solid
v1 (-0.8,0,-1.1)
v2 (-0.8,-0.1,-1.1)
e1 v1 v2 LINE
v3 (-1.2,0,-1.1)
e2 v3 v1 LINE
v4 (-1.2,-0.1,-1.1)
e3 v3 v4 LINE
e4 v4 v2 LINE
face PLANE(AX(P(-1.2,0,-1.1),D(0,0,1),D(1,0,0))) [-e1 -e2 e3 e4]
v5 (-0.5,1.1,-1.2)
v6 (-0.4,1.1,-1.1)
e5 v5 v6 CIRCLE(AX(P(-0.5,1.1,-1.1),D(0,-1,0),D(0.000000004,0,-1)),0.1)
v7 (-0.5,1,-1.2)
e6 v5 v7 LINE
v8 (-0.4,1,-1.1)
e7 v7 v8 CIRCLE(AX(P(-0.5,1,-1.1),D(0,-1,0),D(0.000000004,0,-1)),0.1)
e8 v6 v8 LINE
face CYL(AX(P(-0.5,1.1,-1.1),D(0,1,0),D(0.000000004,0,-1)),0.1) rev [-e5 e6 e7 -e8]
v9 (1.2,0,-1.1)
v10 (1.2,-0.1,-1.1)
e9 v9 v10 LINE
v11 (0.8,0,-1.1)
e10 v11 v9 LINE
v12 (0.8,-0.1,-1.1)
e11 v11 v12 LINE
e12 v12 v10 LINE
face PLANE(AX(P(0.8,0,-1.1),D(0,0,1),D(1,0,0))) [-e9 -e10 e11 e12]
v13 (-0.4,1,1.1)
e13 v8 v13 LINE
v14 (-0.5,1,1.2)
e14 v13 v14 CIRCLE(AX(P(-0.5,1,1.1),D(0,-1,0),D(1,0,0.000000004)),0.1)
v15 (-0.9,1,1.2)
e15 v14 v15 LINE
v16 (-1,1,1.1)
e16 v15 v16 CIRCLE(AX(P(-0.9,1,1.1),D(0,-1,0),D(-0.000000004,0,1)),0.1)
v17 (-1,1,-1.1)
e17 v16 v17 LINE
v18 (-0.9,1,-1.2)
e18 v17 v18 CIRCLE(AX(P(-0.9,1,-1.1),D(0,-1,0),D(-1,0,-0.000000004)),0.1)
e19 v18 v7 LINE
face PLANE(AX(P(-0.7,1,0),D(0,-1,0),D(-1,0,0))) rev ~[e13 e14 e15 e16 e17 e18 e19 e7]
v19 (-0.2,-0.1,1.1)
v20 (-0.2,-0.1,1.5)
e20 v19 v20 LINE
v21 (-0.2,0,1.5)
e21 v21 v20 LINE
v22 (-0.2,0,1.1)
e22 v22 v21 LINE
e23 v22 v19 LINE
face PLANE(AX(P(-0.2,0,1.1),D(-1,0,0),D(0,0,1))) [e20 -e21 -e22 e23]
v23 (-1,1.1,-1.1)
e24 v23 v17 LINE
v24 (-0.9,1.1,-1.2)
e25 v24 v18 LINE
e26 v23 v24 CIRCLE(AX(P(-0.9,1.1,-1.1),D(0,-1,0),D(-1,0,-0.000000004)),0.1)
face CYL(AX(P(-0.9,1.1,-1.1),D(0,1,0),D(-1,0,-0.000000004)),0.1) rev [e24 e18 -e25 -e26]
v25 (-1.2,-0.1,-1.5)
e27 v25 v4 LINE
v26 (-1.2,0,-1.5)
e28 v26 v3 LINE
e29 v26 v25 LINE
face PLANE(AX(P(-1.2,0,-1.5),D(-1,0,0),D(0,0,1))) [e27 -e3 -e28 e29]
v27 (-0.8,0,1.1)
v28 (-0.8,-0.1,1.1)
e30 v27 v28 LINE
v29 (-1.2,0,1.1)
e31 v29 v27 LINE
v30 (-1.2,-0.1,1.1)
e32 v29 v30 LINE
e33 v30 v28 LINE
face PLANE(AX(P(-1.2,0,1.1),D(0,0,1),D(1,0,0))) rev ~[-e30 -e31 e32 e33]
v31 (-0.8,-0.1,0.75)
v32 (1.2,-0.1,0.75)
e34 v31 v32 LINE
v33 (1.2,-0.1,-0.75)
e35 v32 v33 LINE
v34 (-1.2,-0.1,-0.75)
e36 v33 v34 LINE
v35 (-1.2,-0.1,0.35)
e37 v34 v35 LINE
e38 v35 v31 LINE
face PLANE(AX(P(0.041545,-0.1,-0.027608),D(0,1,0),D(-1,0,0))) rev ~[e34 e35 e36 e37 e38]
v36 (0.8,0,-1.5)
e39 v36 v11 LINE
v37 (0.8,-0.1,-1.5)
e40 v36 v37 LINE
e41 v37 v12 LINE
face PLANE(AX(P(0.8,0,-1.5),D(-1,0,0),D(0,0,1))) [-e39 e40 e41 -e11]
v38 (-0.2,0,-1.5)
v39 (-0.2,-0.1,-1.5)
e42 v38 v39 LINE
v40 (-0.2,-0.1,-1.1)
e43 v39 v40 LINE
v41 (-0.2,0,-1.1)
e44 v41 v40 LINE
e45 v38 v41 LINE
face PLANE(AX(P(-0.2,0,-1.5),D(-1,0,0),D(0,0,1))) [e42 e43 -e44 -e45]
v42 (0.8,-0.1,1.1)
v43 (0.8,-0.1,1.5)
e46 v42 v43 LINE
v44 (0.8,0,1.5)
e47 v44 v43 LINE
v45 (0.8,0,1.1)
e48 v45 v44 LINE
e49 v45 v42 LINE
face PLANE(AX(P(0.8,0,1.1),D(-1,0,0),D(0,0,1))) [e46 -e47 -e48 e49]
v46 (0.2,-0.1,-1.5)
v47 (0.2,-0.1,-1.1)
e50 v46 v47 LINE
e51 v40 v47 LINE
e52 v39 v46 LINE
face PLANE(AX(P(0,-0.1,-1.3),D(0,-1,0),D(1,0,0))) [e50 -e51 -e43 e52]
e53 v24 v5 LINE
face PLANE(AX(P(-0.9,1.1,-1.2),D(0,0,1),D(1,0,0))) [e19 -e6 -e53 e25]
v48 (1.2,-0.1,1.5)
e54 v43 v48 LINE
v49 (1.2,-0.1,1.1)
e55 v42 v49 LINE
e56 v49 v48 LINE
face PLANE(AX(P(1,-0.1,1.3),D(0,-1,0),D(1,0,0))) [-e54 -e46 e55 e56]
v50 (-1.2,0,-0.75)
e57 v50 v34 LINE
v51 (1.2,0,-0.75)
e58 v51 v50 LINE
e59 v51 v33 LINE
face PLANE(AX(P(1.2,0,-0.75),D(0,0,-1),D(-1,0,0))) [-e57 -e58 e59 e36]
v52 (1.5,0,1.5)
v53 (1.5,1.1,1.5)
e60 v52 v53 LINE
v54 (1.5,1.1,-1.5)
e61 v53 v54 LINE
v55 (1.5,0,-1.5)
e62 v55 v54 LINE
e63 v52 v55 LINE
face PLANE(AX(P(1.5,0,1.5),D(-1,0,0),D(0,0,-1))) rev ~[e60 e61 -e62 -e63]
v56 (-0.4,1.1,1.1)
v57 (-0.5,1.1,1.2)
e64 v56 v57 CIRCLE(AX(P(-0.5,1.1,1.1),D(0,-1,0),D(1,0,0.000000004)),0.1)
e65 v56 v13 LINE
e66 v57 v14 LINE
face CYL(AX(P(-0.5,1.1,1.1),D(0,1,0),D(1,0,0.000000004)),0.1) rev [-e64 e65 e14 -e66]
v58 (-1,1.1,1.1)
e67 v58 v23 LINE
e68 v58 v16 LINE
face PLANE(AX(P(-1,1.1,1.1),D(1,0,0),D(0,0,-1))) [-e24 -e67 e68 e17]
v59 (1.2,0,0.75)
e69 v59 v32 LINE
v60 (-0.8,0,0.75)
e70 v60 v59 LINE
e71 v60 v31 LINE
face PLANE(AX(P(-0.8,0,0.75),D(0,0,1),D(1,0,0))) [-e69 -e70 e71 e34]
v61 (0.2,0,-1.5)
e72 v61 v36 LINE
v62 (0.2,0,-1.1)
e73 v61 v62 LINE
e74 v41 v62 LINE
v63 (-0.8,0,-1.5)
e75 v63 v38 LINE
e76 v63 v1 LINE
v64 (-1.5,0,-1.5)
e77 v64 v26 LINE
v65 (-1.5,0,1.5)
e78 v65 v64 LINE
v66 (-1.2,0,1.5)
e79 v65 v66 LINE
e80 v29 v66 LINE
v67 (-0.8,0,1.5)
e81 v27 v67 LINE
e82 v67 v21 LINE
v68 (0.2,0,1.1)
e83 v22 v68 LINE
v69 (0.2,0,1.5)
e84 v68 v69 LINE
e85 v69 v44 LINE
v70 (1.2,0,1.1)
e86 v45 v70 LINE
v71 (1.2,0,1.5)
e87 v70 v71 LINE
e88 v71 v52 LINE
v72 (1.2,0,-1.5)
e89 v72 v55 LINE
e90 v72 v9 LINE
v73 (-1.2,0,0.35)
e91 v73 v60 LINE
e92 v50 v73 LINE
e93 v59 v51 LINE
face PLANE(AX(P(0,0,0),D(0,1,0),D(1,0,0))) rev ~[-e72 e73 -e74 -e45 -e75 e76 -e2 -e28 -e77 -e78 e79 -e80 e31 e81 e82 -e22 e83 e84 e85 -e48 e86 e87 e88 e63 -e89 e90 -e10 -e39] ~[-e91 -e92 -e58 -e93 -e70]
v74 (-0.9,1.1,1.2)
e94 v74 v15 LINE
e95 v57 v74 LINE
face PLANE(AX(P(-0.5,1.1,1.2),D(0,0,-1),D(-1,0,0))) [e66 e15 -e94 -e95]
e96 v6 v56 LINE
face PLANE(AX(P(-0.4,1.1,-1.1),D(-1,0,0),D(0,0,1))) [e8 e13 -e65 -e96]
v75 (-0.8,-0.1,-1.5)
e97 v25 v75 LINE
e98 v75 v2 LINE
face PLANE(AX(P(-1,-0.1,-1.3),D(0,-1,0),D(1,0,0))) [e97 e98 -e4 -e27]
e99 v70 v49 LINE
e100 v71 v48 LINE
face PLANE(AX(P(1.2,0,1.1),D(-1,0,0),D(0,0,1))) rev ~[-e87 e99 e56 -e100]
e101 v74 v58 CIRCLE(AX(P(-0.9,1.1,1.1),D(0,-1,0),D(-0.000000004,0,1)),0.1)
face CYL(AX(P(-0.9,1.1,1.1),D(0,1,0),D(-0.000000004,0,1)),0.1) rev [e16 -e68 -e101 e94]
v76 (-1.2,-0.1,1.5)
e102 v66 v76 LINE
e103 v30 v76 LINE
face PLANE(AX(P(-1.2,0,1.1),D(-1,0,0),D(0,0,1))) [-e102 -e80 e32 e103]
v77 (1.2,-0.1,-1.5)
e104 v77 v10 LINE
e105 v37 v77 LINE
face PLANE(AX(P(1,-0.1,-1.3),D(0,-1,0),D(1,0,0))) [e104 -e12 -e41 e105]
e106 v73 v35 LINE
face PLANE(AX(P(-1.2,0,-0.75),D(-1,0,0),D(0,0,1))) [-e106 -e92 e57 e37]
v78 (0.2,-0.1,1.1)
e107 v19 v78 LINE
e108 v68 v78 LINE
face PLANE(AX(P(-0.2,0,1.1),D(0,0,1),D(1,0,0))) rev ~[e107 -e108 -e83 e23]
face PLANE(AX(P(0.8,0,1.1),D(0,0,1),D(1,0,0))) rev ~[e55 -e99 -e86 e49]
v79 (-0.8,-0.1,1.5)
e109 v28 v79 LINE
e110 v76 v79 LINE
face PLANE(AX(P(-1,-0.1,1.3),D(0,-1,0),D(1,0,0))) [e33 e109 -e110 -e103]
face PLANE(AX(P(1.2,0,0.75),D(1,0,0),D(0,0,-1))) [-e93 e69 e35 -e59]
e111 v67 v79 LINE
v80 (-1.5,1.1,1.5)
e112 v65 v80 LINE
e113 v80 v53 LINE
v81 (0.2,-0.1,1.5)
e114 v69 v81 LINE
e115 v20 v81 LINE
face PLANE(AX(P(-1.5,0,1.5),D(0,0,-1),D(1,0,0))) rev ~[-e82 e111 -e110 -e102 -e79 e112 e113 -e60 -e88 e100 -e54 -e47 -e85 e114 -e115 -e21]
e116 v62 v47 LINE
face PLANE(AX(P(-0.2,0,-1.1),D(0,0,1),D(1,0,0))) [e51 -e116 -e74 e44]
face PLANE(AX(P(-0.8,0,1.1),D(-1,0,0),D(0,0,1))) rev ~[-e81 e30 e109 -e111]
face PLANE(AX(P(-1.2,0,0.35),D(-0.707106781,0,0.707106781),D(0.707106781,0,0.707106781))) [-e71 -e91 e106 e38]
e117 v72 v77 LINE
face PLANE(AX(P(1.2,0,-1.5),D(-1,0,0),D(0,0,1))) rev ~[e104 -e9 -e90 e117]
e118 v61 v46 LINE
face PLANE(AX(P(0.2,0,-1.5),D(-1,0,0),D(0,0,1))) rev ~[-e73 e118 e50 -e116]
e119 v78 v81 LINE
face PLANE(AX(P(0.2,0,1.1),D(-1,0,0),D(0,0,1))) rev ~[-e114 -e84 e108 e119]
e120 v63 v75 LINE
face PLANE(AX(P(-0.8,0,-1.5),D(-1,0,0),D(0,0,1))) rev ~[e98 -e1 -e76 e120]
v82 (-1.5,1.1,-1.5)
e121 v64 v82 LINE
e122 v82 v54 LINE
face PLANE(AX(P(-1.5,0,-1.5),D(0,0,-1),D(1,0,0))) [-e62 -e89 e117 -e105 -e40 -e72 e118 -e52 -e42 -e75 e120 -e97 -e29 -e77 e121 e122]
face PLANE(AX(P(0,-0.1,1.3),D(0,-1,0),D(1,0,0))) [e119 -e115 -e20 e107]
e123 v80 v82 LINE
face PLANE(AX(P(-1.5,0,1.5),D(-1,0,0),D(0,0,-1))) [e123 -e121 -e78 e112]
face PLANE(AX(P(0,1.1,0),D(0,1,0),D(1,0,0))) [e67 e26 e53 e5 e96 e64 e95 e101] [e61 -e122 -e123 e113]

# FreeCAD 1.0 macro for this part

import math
import FreeCAD as App
import Part
import Sketcher
from FreeCAD import Vector
Q = App.Units.Quantity

doc = App.newDocument("Part")
body = doc.addObject("PartDesign::Body", "Body")

sketch1 = doc.addObject("Sketcher::SketchObject", "Sketch")
body.addObject(sketch1)
sketch1.AttachmentSupport = (doc.XZ_Plane, [""])
sketch1.MapMode = "FlatFace"
sketch1.addGeometry(Part.LineSegment(Vector(-1.5, -1.5, 0), Vector(-1.5, 1.5, 0)), False)
sketch1.addGeometry(Part.LineSegment(Vector(-1.5, 1.5, 0), Vector(1.5, 1.5, 0)), False)
sketch1.addGeometry(Part.LineSegment(Vector(1.5, 1.5, 0), Vector(1.5, -1.5, 0)), False)
sketch1.addGeometry(Part.LineSegment(Vector(1.5, -1.5, 0), Vector(-1.5, -1.5, 0)), False)
sketch1.addConstraint(Sketcher.Constraint("Coincident", 0, 2, 1, 1))
sketch1.addConstraint(Sketcher.Constraint("Coincident", 1, 2, 2, 1))
sketch1.addConstraint(Sketcher.Constraint("Coincident", 2, 2, 3, 1))
sketch1.addConstraint(Sketcher.Constraint("Coincident", 3, 2, 0, 1))
sketch1.addConstraint(Sketcher.Constraint("Vertical", 0))
sketch1.addConstraint(Sketcher.Constraint("Horizontal", 1))
sketch1.addConstraint(Sketcher.Constraint("Vertical", 2))
sketch1.addConstraint(Sketcher.Constraint("Horizontal", 3))
sketch1.addConstraint(Sketcher.Constraint("Symmetric", 0, 2, 2, 2, -1, 1))
sketch1.addConstraint(Sketcher.Constraint("Equal", 3, 0))
sketch1.addConstraint(Sketcher.Constraint("DistanceX", 1, 1, 1, 2, 3.0))
pad1 = doc.addObject("PartDesign::Pad", "Pad")
body.addObject(pad1)
pad1.Profile = sketch1
pad1.Length = 1.1
pad1.Reversed = True

sketch2 = doc.addObject("Sketcher::SketchObject", "Sketch001")
body.addObject(sketch2)
sketch2.AttachmentSupport = (doc.XZ_Plane, [""])
sketch2.MapMode = "FlatFace"
sketch2.AttachmentOffset = App.Placement(Vector(0, 0, -1.1), App.Rotation())
sketch2.addGeometry(Part.LineSegment(Vector(-0.5, -1.2, 0), Vector(-0.9, -1.2, 0)), False)
sketch2.addGeometry(Part.ArcOfCircle(Part.Circle(Vector(-0.9, -1.1, 0), Vector(0, 0, 1), 0.1), math.radians(180), math.radians(270)), False)
sketch2.addGeometry(Part.LineSegment(Vector(-1, -1.1, 0), Vector(-1, 1.1, 0)), False)
sketch2.addGeometry(Part.ArcOfCircle(Part.Circle(Vector(-0.9, 1.1, 0), Vector(0, 0, 1), 0.1), math.radians(90), math.radians(180)), False)
sketch2.addGeometry(Part.LineSegment(Vector(-0.9, 1.2, 0), Vector(-0.5, 1.2, 0)), False)
sketch2.addGeometry(Part.ArcOfCircle(Part.Circle(Vector(-0.5, 1.1, 0), Vector(0, 0, 1), 0.1), math.radians(0), math.radians(90)), False)
sketch2.addGeometry(Part.LineSegment(Vector(-0.4, 1.1, 0), Vector(-0.4, -1.1, 0)), False)
sketch2.addGeometry(Part.ArcOfCircle(Part.Circle(Vector(-0.5, -1.1, 0), Vector(0, 0, 1), 0.1), math.radians(-90), math.radians(0)), False)
sketch2.addConstraint(Sketcher.Constraint("Tangent", 0, 2, 1, 2))
sketch2.addConstraint(Sketcher.Constraint("Tangent", 1, 1, 2, 1))
sketch2.addConstraint(Sketcher.Constraint("Tangent", 2, 2, 3, 2))
sketch2.addConstraint(Sketcher.Constraint("Tangent", 3, 1, 4, 1))
sketch2.addConstraint(Sketcher.Constraint("Tangent", 4, 2, 5, 2))
sketch2.addConstraint(Sketcher.Constraint("Tangent", 5, 1, 6, 1))
sketch2.addConstraint(Sketcher.Constraint("Tangent", 6, 2, 7, 2))
sketch2.addConstraint(Sketcher.Constraint("Tangent", 7, 1, 0, 1))
sketch2.addConstraint(Sketcher.Constraint("Horizontal", 0))
sketch2.addConstraint(Sketcher.Constraint("Vertical", 2))
sketch2.addConstraint(Sketcher.Constraint("Horizontal", 4))
sketch2.addConstraint(Sketcher.Constraint("Vertical", 6))
sketch2.addConstraint(Sketcher.Constraint("Equal", 1, 3))
sketch2.addConstraint(Sketcher.Constraint("Equal", 3, 5))
sketch2.addConstraint(Sketcher.Constraint("Equal", 5, 7))
sketch2.addConstraint(Sketcher.Constraint("Radius", 1, 0.1))
sketch2.addConstraint(Sketcher.Constraint("DistanceX", 0, 2, 0, 1, 0.4))
sketch2.addConstraint(Sketcher.Constraint("DistanceY", 2, 1, 2, 2, 2.2))
sketch2.addConstraint(Sketcher.Constraint("DistanceX", 1, 1, -1, 1, 1.0))
sketch2.addConstraint(Sketcher.Constraint("DistanceY", 1, 3, -1, 1, 1.1))
pocket1 = doc.addObject("PartDesign::Pocket", "Pocket")
body.addObject(pocket1)
pocket1.Profile = sketch2
pocket1.Length = 0.1
pocket1.Reversed = True

sketch3 = doc.addObject("Sketcher::SketchObject", "Sketch002")
body.addObject(sketch3)
sketch3.AttachmentSupport = (doc.XZ_Plane, [""])
sketch3.MapMode = "FlatFace"
sketch3.addGeometry(Part.LineSegment(Vector(-1.2, -0.75, 0), Vector(1.2, -0.75, 0)), False)
sketch3.addGeometry(Part.LineSegment(Vector(1.2, -0.75, 0), Vector(1.2, 0.75, 0)), False)
sketch3.addGeometry(Part.LineSegment(Vector(1.2, 0.75, 0), Vector(-0.8, 0.75, 0)), False)
sketch3.addGeometry(Part.LineSegment(Vector(-0.8, 0.75, 0), Vector(-1.2, 0.35, 0)), False)
sketch3.addGeometry(Part.LineSegment(Vector(-1.2, 0.35, 0), Vector(-1.2, -0.75, 0)), False)
sketch3.addGeometry(Part.LineSegment(Vector(0.8, -1.1, 0), Vector(0.8, -1.5, 0)), False)
sketch3.addGeometry(Part.LineSegment(Vector(0.8, -1.5, 0), Vector(1.2, -1.5, 0)), False)
sketch3.addGeometry(Part.LineSegment(Vector(1.2, -1.5, 0), Vector(1.2, -1.1, 0)), False)
sketch3.addGeometry(Part.LineSegment(Vector(1.2, -1.1, 0), Vector(0.8, -1.1, 0)), False)
sketch3.addGeometry(Part.LineSegment(Vector(-0.2, -1.1, 0), Vector(-0.2, -1.5, 0)), False)
sketch3.addGeometry(Part.LineSegment(Vector(-0.2, -1.5, 0), Vector(0.2, -1.5, 0)), False)
sketch3.addGeometry(Part.LineSegment(Vector(0.2, -1.5, 0), Vector(0.2, -1.1, 0)), False)
sketch3.addGeometry(Part.LineSegment(Vector(0.2, -1.1, 0), Vector(-0.2, -1.1, 0)), False)
sketch3.addGeometry(Part.LineSegment(Vector(-1.2, -1.1, 0), Vector(-1.2, -1.5, 0)), False)
sketch3.addGeometry(Part.LineSegment(Vector(-1.2, -1.5, 0), Vector(-0.8, -1.5, 0)), False)
sketch3.addGeometry(Part.LineSegment(Vector(-0.8, -1.5, 0), Vector(-0.8, -1.1, 0)), False)
sketch3.addGeometry(Part.LineSegment(Vector(-0.8, -1.1, 0), Vector(-1.2, -1.1, 0)), False)
sketch3.addGeometry(Part.LineSegment(Vector(0.8, 1.5, 0), Vector(0.8, 1.1, 0)), False)
sketch3.addGeometry(Part.LineSegment(Vector(0.8, 1.1, 0), Vector(1.2, 1.1, 0)), False)
sketch3.addGeometry(Part.LineSegment(Vector(1.2, 1.1, 0), Vector(1.2, 1.5, 0)), False)
sketch3.addGeometry(Part.LineSegment(Vector(1.2, 1.5, 0), Vector(0.8, 1.5, 0)), False)
sketch3.addGeometry(Part.LineSegment(Vector(-0.2, 1.5, 0), Vector(-0.2, 1.1, 0)), False)
sketch3.addGeometry(Part.LineSegment(Vector(-0.2, 1.1, 0), Vector(0.2, 1.1, 0)), False)
sketch3.addGeometry(Part.LineSegment(Vector(0.2, 1.1, 0), Vector(0.2, 1.5, 0)), False)
sketch3.addGeometry(Part.LineSegment(Vector(0.2, 1.5, 0), Vector(-0.2, 1.5, 0)), False)
sketch3.addGeometry(Part.LineSegment(Vector(-1.2, 1.5, 0), Vector(-1.2, 1.1, 0)), False)
sketch3.addGeometry(Part.LineSegment(Vector(-1.2, 1.1, 0), Vector(-0.8, 1.1, 0)), False)
sketch3.addGeometry(Part.LineSegment(Vector(-0.8, 1.1, 0), Vector(-0.8, 1.5, 0)), False)
sketch3.addGeometry(Part.LineSegment(Vector(-0.8, 1.5, 0), Vector(-1.2, 1.5, 0)), False)
sketch3.addConstraint(Sketcher.Constraint("Coincident", 0, 2, 1, 1))
sketch3.addConstraint(Sketcher.Constraint("Coincident", 1, 2, 2, 1))
sketch3.addConstraint(Sketcher.Constraint("Coincident", 2, 2, 3, 1))
sketch3.addConstraint(Sketcher.Constraint("Coincident", 3, 2, 4, 1))
sketch3.addConstraint(Sketcher.Constraint("Coincident", 4, 2, 0, 1))
sketch3.addConstraint(Sketcher.Constraint("Coincident", 5, 2, 6, 1))
sketch3.addConstraint(Sketcher.Constraint("Coincident", 6, 2, 7, 1))
sketch3.addConstraint(Sketcher.Constraint("Coincident", 7, 2, 8, 1))
sketch3.addConstraint(Sketcher.Constraint("Coincident", 8, 2, 5, 1))
sketch3.addConstraint(Sketcher.Constraint("Coincident", 9, 2, 10, 1))
sketch3.addConstraint(Sketcher.Constraint("Coincident", 10, 2, 11, 1))
sketch3.addConstraint(Sketcher.Constraint("Coincident", 11, 2, 12, 1))
sketch3.addConstraint(Sketcher.Constraint("Coincident", 12, 2, 9, 1))
sketch3.addConstraint(Sketcher.Constraint("Coincident", 13, 2, 14, 1))
sketch3.addConstraint(Sketcher.Constraint("Coincident", 14, 2, 15, 1))
sketch3.addConstraint(Sketcher.Constraint("Coincident", 15, 2, 16, 1))
sketch3.addConstraint(Sketcher.Constraint("Coincident", 16, 2, 13, 1))
sketch3.addConstraint(Sketcher.Constraint("Coincident", 17, 2, 18, 1))
sketch3.addConstraint(Sketcher.Constraint("Coincident", 18, 2, 19, 1))
sketch3.addConstraint(Sketcher.Constraint("Coincident", 19, 2, 20, 1))
sketch3.addConstraint(Sketcher.Constraint("Coincident", 20, 2, 17, 1))
sketch3.addConstraint(Sketcher.Constraint("Coincident", 21, 2, 22, 1))
sketch3.addConstraint(Sketcher.Constraint("Coincident", 22, 2, 23, 1))
sketch3.addConstraint(Sketcher.Constraint("Coincident", 23, 2, 24, 1))
sketch3.addConstraint(Sketcher.Constraint("Coincident", 24, 2, 21, 1))
sketch3.addConstraint(Sketcher.Constraint("Coincident", 25, 2, 26, 1))
sketch3.addConstraint(Sketcher.Constraint("Coincident", 26, 2, 27, 1))
sketch3.addConstraint(Sketcher.Constraint("Coincident", 27, 2, 28, 1))
sketch3.addConstraint(Sketcher.Constraint("Coincident", 28, 2, 25, 1))
sketch3.addConstraint(Sketcher.Constraint("Horizontal", 0))
sketch3.addConstraint(Sketcher.Constraint("Vertical", 1))
sketch3.addConstraint(Sketcher.Constraint("Horizontal", 2))
sketch3.addConstraint(Sketcher.Constraint("Vertical", 4))
sketch3.addConstraint(Sketcher.Constraint("Vertical", 5))
sketch3.addConstraint(Sketcher.Constraint("Horizontal", 6))
sketch3.addConstraint(Sketcher.Constraint("Vertical", 7))
sketch3.addConstraint(Sketcher.Constraint("Horizontal", 8))
sketch3.addConstraint(Sketcher.Constraint("Vertical", 9))
sketch3.addConstraint(Sketcher.Constraint("Horizontal", 10))
sketch3.addConstraint(Sketcher.Constraint("Vertical", 11))
sketch3.addConstraint(Sketcher.Constraint("Horizontal", 12))
sketch3.addConstraint(Sketcher.Constraint("Vertical", 13))
sketch3.addConstraint(Sketcher.Constraint("Horizontal", 14))
sketch3.addConstraint(Sketcher.Constraint("Vertical", 15))
sketch3.addConstraint(Sketcher.Constraint("Horizontal", 16))
sketch3.addConstraint(Sketcher.Constraint("Vertical", 17))
sketch3.addConstraint(Sketcher.Constraint("Horizontal", 18))
sketch3.addConstraint(Sketcher.Constraint("Vertical", 19))
sketch3.addConstraint(Sketcher.Constraint("Horizontal", 20))
sketch3.addConstraint(Sketcher.Constraint("Vertical", 21))
sketch3.addConstraint(Sketcher.Constraint("Horizontal", 22))
sketch3.addConstraint(Sketcher.Constraint("Vertical", 23))
sketch3.addConstraint(Sketcher.Constraint("Horizontal", 24))
sketch3.addConstraint(Sketcher.Constraint("Vertical", 25))
sketch3.addConstraint(Sketcher.Constraint("Horizontal", 26))
sketch3.addConstraint(Sketcher.Constraint("Vertical", 27))
sketch3.addConstraint(Sketcher.Constraint("Horizontal", 28))
sketch3.addConstraint(Sketcher.Constraint("Symmetric", 1, 2, 4, 2, -1, 1))
sketch3.addConstraint(Sketcher.Constraint("Symmetric", 15, 2, 17, 2, -1, 1))
sketch3.addConstraint(Sketcher.Constraint("Symmetric", 13, 2, 19, 2, -1, 1))
sketch3.addConstraint(Sketcher.Constraint("Symmetric", 11, 2, 21, 2, -1, 1))
sketch3.addConstraint(Sketcher.Constraint("Symmetric", 9, 2, 23, 2, -1, 1))
sketch3.addConstraint(Sketcher.Constraint("Symmetric", 7, 2, 25, 2, -1, 1))
sketch3.addConstraint(Sketcher.Constraint("Symmetric", 5, 2, 27, 2, -1, 1))
sketch3.addConstraint(Sketcher.Constraint("Symmetric", 6, 2, 13, 2, -2))
sketch3.addConstraint(Sketcher.Constraint("Symmetric", 8, 2, 15, 2, -2))
sketch3.addConstraint(Sketcher.Constraint("Horizontal", 6, 2, 9, 2))
sketch3.addConstraint(Sketcher.Constraint("Horizontal", 8, 2, 11, 2))
sketch3.addConstraint(Sketcher.Constraint("Vertical", 1, 2, 6, 2))
sketch3.addConstraint(Sketcher.Constraint("Vertical", 2, 2, 14, 2))
sketch3.addConstraint(Sketcher.Constraint("Vertical", 12, 2, 21, 2))
sketch3.addConstraint(Sketcher.Constraint("Equal", 8, 10))
sketch3.addConstraint(Sketcher.Constraint("Equal", 28, 5))
sketch3.addConstraint(Sketcher.Constraint("DistanceX", 2, 2, 2, 1, 2.0))
sketch3.addConstraint(Sketcher.Constraint("Angle", 3, Q("-135 deg")))
sketch3.addConstraint(Sketcher.Constraint("DistanceX", 0, 1, 0, 2, 2.4))
sketch3.addConstraint(Sketcher.Constraint("DistanceY", 1, 1, 1, 2, 1.5))
sketch3.addConstraint(Sketcher.Constraint("DistanceY", 5, 2, -1, 1, 1.5))
pad2 = doc.addObject("PartDesign::Pad", "Pad001")
body.addObject(pad2)
pad2.Profile = sketch3
pad2.Length = 0.1

doc.recompute()
